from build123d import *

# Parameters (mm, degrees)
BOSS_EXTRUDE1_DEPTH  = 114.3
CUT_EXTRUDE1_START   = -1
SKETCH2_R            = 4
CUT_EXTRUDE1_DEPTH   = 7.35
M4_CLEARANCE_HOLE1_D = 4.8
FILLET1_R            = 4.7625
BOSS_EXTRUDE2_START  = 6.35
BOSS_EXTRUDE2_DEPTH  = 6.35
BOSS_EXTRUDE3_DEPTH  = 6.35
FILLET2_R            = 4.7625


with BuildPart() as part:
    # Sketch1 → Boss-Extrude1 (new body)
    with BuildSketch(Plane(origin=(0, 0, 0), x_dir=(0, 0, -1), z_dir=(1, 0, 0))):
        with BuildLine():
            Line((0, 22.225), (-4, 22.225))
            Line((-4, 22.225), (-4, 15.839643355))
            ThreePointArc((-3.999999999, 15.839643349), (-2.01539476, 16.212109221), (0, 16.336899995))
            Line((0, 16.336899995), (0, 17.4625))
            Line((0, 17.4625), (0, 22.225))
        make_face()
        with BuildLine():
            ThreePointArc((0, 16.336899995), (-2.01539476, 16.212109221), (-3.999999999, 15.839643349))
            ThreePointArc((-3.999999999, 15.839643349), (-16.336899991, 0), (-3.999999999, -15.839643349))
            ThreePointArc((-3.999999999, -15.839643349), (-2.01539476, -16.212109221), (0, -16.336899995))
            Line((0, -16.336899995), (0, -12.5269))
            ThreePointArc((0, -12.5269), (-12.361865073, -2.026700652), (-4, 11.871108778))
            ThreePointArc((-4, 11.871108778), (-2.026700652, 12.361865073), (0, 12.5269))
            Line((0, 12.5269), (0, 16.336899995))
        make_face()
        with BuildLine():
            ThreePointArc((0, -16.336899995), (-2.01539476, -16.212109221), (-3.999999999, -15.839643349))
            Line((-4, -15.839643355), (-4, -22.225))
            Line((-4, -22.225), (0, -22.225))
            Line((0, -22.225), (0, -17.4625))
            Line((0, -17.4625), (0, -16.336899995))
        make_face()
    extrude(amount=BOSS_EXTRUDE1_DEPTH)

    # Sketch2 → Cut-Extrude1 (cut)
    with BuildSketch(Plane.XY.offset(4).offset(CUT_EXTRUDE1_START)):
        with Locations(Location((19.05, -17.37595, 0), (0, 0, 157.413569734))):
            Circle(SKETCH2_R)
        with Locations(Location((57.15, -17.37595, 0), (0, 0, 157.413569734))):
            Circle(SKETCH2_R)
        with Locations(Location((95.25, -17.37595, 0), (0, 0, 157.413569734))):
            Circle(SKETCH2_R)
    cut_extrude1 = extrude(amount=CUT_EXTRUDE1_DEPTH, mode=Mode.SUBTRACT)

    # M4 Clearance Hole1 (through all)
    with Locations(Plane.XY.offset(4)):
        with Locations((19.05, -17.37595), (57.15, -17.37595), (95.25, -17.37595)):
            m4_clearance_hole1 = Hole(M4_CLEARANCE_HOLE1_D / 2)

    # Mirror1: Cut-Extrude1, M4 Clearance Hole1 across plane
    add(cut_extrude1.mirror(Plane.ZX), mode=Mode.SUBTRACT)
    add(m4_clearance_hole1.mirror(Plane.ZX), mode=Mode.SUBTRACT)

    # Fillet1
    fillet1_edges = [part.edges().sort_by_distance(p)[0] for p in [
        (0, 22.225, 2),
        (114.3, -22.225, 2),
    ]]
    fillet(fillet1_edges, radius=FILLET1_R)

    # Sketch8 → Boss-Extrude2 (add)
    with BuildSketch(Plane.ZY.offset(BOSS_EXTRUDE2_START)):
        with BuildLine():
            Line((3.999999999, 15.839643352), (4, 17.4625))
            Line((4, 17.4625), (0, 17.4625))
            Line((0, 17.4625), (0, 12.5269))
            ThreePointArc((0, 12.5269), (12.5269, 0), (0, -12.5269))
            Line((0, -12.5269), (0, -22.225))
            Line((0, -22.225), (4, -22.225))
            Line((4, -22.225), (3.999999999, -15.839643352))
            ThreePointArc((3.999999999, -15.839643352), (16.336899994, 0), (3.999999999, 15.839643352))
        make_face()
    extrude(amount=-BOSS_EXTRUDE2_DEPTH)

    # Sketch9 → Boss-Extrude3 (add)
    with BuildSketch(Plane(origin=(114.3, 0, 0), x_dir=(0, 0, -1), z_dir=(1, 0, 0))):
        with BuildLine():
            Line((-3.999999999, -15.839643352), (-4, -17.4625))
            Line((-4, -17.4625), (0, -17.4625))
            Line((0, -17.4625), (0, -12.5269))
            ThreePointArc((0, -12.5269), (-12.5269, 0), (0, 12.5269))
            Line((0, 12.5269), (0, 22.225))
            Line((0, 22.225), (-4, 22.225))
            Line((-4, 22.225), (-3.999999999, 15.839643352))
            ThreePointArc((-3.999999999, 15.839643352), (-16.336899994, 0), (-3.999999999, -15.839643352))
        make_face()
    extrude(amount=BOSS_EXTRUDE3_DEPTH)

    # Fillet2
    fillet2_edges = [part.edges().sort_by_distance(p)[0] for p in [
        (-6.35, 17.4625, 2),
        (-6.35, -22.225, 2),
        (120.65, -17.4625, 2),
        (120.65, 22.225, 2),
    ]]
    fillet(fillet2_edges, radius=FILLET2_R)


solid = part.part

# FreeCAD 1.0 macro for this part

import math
import FreeCAD as App
import Part
import Sketcher

V = App.Vector
Q = App.Units.Quantity


def edges_at(feature, points):
    """Names of the edges that pass closest to the given points."""
    edges = feature.Shape.Edges
    near = lambda p: min(range(len(edges)), key=lambda i: edges[i].distToShape(Part.Vertex(*p))[0])
    return sorted({f"Edge{near(p) + 1}" for p in points})

doc = App.newDocument("Part")
body = doc.addObject("PartDesign::Body", "Body")

# Sketch on YZ plane
sketch1 = body.newObject("Sketcher::SketchObject", "Sketch")
sketch1.AttachmentSupport = (doc.getObject("YZ_Plane"), [""])
sketch1.MapMode = "FlatFace"
sketch1.addGeometry(Part.LineSegment(V(22.2, 0, 0), V(22.2, 4, 0)), False)
sketch1.addGeometry(Part.LineSegment(V(22.2, 4, 0), V(15.8, 4, 0)), False)
sketch1.addGeometry(Part.ArcOfCircle(Part.Circle(V(0, 0, 0), V(0, 0, 1), 16.3), math.radians(14), math.radians(166)), False)
sketch1.addGeometry(Part.LineSegment(V(-15.8, 4, 0), V(-22.2, 4, 0)), False)
sketch1.addGeometry(Part.LineSegment(V(-22.2, 4, 0), V(-22.2, 0, 0)), False)
sketch1.addGeometry(Part.LineSegment(V(-22.2, 0, 0), V(-12.5, 0, 0)), False)
sketch1.addGeometry(Part.ArcOfCircle(Part.Circle(V(0, 0, 0), V(0, 0, 1), 12.5), math.radians(19), math.radians(180)), False)
sketch1.addGeometry(Part.ArcOfCircle(Part.Circle(V(0, 0, 0), V(0, 0, 1), 12.5), math.radians(0), math.radians(18.62)), False)
sketch1.addGeometry(Part.LineSegment(V(12.5, 0, 0), V(22.2, 0, 0)), False)
sketch1.addConstraint(Sketcher.Constraint("Coincident", 0, 2, 1, 1))
sketch1.addConstraint(Sketcher.Constraint("Coincident", 1, 2, 2, 1))
sketch1.addConstraint(Sketcher.Constraint("Coincident", 2, 2, 3, 1))
sketch1.addConstraint(Sketcher.Constraint("Coincident", 3, 2, 4, 1))
sketch1.addConstraint(Sketcher.Constraint("Coincident", 4, 2, 5, 1))
sketch1.addConstraint(Sketcher.Constraint("Coincident", 5, 2, 6, 2))
sketch1.addConstraint(Sketcher.Constraint("Tangent", 6, 1, 7, 2))
sketch1.addConstraint(Sketcher.Constraint("Coincident", 7, 1, 8, 1))
sketch1.addConstraint(Sketcher.Constraint("Coincident", 8, 2, 0, 1))
sketch1.addConstraint(Sketcher.Constraint("Vertical", 0))
sketch1.addConstraint(Sketcher.Constraint("Horizontal", 1))
sketch1.addConstraint(Sketcher.Constraint("Horizontal", 3))
sketch1.addConstraint(Sketcher.Constraint("Vertical", 4))
sketch1.addConstraint(Sketcher.Constraint("Horizontal", 5))
sketch1.addConstraint(Sketcher.Constraint("Horizontal", 8))
sketch1.addConstraint(Sketcher.Constraint("Coincident", 2, 3, -1, 1))
sketch1.addConstraint(Sketcher.Constraint("Coincident", 6, 3, -1, 1))
sketch1.addConstraint(Sketcher.Constraint("Equal", 6, 7))
sketch1.addConstraint(Sketcher.Constraint("Symmetric", 4, 2, 8, 2, -1, 1))
sketch1.addConstraint(Sketcher.Constraint("PointOnObject", 4, 2, -1))
sketch1.addConstraint(Sketcher.Constraint("Horizontal", 1, 2, 2, 2))
sketch1.addConstraint(Sketcher.Constraint("Horizontal", 3, 2, 6, 1))
sketch1.addConstraint(Sketcher.Constraint("DistanceY", 0, 1, 0, 2, Q("4 mm")))
sketch1.addConstraint(Sketcher.Constraint("Radius", 2, Q("16.3369 mm")))
sketch1.addConstraint(Sketcher.Constraint("Radius", 6, Q("12.5269 mm")))
sketch1.addConstraint(Sketcher.Constraint("DistanceX", 5, 1, 5, 2, Q("9.6981 mm")))
pad1 = body.newObject("PartDesign::Pad", "Pad")
pad1.Profile = sketch1
pad1.Length = 114.3

# Sketch on XY plane
sketch2 = body.newObject("Sketcher::SketchObject", "Sketch001")
sketch2.AttachmentSupport = (doc.getObject("XY_Plane"), [""])
sketch2.MapMode = "FlatFace"
sketch2.AttachmentOffset = App.Placement(V(0, 0, 3), App.Rotation())
sketch2.addGeometry(Part.Circle(V(19.1, -17.4, 0), V(0, 0, 1), 4), False)
sketch2.addGeometry(Part.Circle(V(57.1, -17.4, 0), V(0, 0, 1), 4), False)
sketch2.addGeometry(Part.Circle(V(95.2, -17.4, 0), V(0, 0, 1), 4), False)
sketch2.addConstraint(Sketcher.Constraint("Equal", 0, 1))
sketch2.addConstraint(Sketcher.Constraint("Equal", 1, 2))
sketch2.addConstraint(Sketcher.Constraint("Horizontal", 0, 3, 1, 3))
sketch2.addConstraint(Sketcher.Constraint("Horizontal", 1, 3, 2, 3))
sketch2.addConstraint(Sketcher.Constraint("Diameter", 0, Q("8 mm")))
sketch2.addConstraint(Sketcher.Constraint("DistanceX", 0, 3, 1, 3, Q("38.1 mm")))
sketch2.addConstraint(Sketcher.Constraint("DistanceX", 1, 3, 2, 3, Q("38.1 mm")))
sketch2.addConstraint(Sketcher.Constraint("DistanceX", -1, 1, 0, 3, Q("19.05 mm")))
sketch2.addConstraint(Sketcher.Constraint("DistanceY", 0, 3, -1, 1, Q("17.37595 mm")))
pocket1 = body.newObject("PartDesign::Pocket", "Pocket")
pocket1.Profile = sketch2
pocket1.Length = 7.35
pocket1.Reversed = True

# Sketch on XY plane
sketch3 = body.newObject("Sketcher::SketchObject", "Sketch002")
sketch3.AttachmentSupport = (doc.getObject("XY_Plane"), [""])
sketch3.MapMode = "FlatFace"
sketch3.AttachmentOffset = App.Placement(V(0, 0, 4), App.Rotation())
sketch3.addGeometry(Part.Circle(V(19.1, -17.4, 0), V(0, 0, 1), 2.4), False)
sketch3.addGeometry(Part.Circle(V(57.1, -17.4, 0), V(0, 0, 1), 2.4), False)
sketch3.addGeometry(Part.Circle(V(95.2, -17.4, 0), V(0, 0, 1), 2.4), False)
sketch3.addConstraint(Sketcher.Constraint("Equal", 0, 1))
sketch3.addConstraint(Sketcher.Constraint("Equal", 1, 2))
sketch3.addConstraint(Sketcher.Constraint("Horizontal", 0, 3, 1, 3))
sketch3.addConstraint(Sketcher.Constraint("Horizontal", 1, 3, 2, 3))
sketch3.addConstraint(Sketcher.Constraint("Diameter", 0, Q("4.8 mm")))
sketch3.addConstraint(Sketcher.Constraint("DistanceX", 0, 3, 1, 3, Q("38.1 mm")))
sketch3.addConstraint(Sketcher.Constraint("DistanceX", 1, 3, 2, 3, Q("38.1 mm")))
sketch3.addConstraint(Sketcher.Constraint("DistanceX", -1, 1, 0, 3, Q("19.05 mm")))
sketch3.addConstraint(Sketcher.Constraint("DistanceY", 0, 3, -1, 1, Q("17.37595 mm")))
doc.recompute()
hole = body.newObject("PartDesign::Hole", "Hole")
hole.Profile = sketch3
hole.ThreadType = "None"
hole.Diameter = 4.8
hole.DepthType = "ThroughAll"
doc.recompute()

mirrored = body.newObject("PartDesign::Mirrored", "Mirrored")
mirrored.Originals = [pocket1, hole]
mirrored.MirrorPlane = (doc.getObject("XZ_Plane"), [""])
body.Tip = mirrored
doc.recompute()

fillet = body.newObject("PartDesign::Fillet", "Fillet")
fillet.Base = (mirrored, edges_at(mirrored, [(0, 22.225, 2), (114.3, -22.225, 2)]))
fillet.Radius = 4.7625

# Sketch on YZ plane
sketch4 = body.newObject("Sketcher::SketchObject", "Sketch003")
sketch4.AttachmentSupport = (doc.getObject("YZ_Plane"), [""])
sketch4.MapMode = "FlatFace"
sketch4.AttachmentOffset = App.Placement(V(0, 0, -6.35), App.Rotation())
sketch4.addGeometry(Part.LineSegment(V(15.8, 4, 0), V(17.5, 4, 0)), False)
sketch4.addGeometry(Part.LineSegment(V(17.5, 4, 0), V(17.5, 0, 0)), False)
sketch4.addGeometry(Part.LineSegment(V(17.5, 0, 0), V(12.5, 0, 0)), False)
sketch4.addGeometry(Part.ArcOfCircle(Part.Circle(V(0, 0, 0), V(0, 0, 1), 12.5), math.radians(0), math.radians(180)), False)
sketch4.addGeometry(Part.LineSegment(V(-12.5, 0, 0), V(-22.2, 0, 0)), False)
sketch4.addGeometry(Part.LineSegment(V(-22.2, 0, 0), V(-22.2, 4, 0)), False)
sketch4.addGeometry(Part.LineSegment(V(-22.2, 4, 0), V(-15.8, 4, 0)), False)
sketch4.addGeometry(Part.ArcOfCircle(Part.Circle(V(0, 0, 0), V(0, 0, 1), 16.3), math.radians(14), math.radians(166)), False)
sketch4.addConstraint(Sketcher.Constraint("Coincident", 0, 2, 1, 1))
sketch4.addConstraint(Sketcher.Constraint("Coincident", 1, 2, 2, 1))
sketch4.addConstraint(Sketcher.Constraint("Coincident", 2, 2, 3, 1))
sketch4.addConstraint(Sketcher.Constraint("Coincident", 3, 2, 4, 1))
sketch4.addConstraint(Sketcher.Constraint("Coincident", 4, 2, 5, 1))
sketch4.addConstraint(Sketcher.Constraint("Coincident", 5, 2, 6, 1))
sketch4.addConstraint(Sketcher.Constraint("Coincident", 6, 2, 7, 2))
sketch4.addConstraint(Sketcher.Constraint("Coincident", 7, 1, 0, 1))
sketch4.addConstraint(Sketcher.Constraint("Horizontal", 0))
sketch4.addConstraint(Sketcher.Constraint("Vertical", 1))
sketch4.addConstraint(Sketcher.Constraint("Horizontal", 2))
sketch4.addConstraint(Sketcher.Constraint("Horizontal", 4))
sketch4.addConstraint(Sketcher.Constraint("Vertical", 5))
sketch4.addConstraint(Sketcher.Constraint("Horizontal", 6))
sketch4.addConstraint(Sketcher.Constraint("Coincident", 3, 3, -1, 1))
sketch4.addConstraint(Sketcher.Constraint("Coincident", 7, 3, -1, 1))
sketch4.addConstraint(Sketcher.Constraint("PointOnObject", 1, 2, -1))
sketch4.addConstraint(Sketcher.Constraint("PointOnObject", 3, 2, -1))
sketch4.addConstraint(Sketcher.Constraint("Horizontal", 0, 2, 5, 2))
sketch4.addConstraint(Sketcher.Constraint("DistanceY", 1, 2, 1, 1, Q("4 mm")))
sketch4.addConstraint(Sketcher.Constraint("Radius", 3, Q("12.5269 mm")))
sketch4.addConstraint(Sketcher.Constraint("Radius", 7, Q("16.3369 mm")))
sketch4.addConstraint(Sketcher.Constraint("DistanceX", 2, 2, 2, 1, Q("4.9356 mm")))
sketch4.addConstraint(Sketcher.Constraint("DistanceX", 4, 2, 4, 1, Q("9.6981 mm")))
pad2 = body.newObject("PartDesign::Pad", "Pad001")
pad2.Profile = sketch4
pad2.Length = 6.35

# Sketch on YZ plane
sketch5 = body.newObject("Sketcher::SketchObject", "Sketch004")
sketch5.AttachmentSupport = (doc.getObject("YZ_Plane"), [""])
sketch5.MapMode = "FlatFace"
sketch5.AttachmentOffset = App.Placement(V(0, 0, 114.3), App.Rotation())
sketch5.addGeometry(Part.LineSegment(V(-15.8, 4, 0), V(-17.5, 4, 0)), False)
sketch5.addGeometry(Part.LineSegment(V(-17.5, 4, 0), V(-17.5, 0, 0)), False)
sketch5.addGeometry(Part.LineSegment(V(-17.5, 0, 0), V(-12.5, 0, 0)), False)
sketch5.addGeometry(Part.ArcOfCircle(Part.Circle(V(0, 0, 0), V(0, 0, 1), 12.5), math.radians(0), math.radians(180)), False)
sketch5.addGeometry(Part.LineSegment(V(12.5, 0, 0), V(22.2, 0, 0)), False)
sketch5.addGeometry(Part.LineSegment(V(22.2, 0, 0), V(22.2, 4, 0)), False)
sketch5.addGeometry(Part.LineSegment(V(22.2, 4, 0), V(15.8, 4, 0)), False)
sketch5.addGeometry(Part.ArcOfCircle(Part.Circle(V(0, 0, 0), V(0, 0, 1), 16.3), math.radians(14), math.radians(166)), False)
sketch5.addConstraint(Sketcher.Constraint("Coincident", 0, 2, 1, 1))
sketch5.addConstraint(Sketcher.Constraint("Coincident", 1, 2, 2, 1))
sketch5.addConstraint(Sketcher.Constraint("Coincident", 2, 2, 3, 2))
sketch5.addConstraint(Sketcher.Constraint("Coincident", 3, 1, 4, 1))
sketch5.addConstraint(Sketcher.Constraint("Coincident", 4, 2, 5, 1))
sketch5.addConstraint(Sketcher.Constraint("Coincident", 5, 2, 6, 1))
sketch5.addConstraint(Sketcher.Constraint("Coincident", 6, 2, 7, 1))
sketch5.addConstraint(Sketcher.Constraint("Coincident", 7, 2, 0, 1))
sketch5.addConstraint(Sketcher.Constraint("Horizontal", 0))
sketch5.addConstraint(Sketcher.Constraint("Vertical", 1))
sketch5.addConstraint(Sketcher.Constraint("Horizontal", 2))
sketch5.addConstraint(Sketcher.Constraint("Horizontal", 4))
sketch5.addConstraint(Sketcher.Constraint("Vertical", 5))
sketch5.addConstraint(Sketcher.Constraint("Horizontal", 6))
sketch5.addConstraint(Sketcher.Constraint("Coincident", 3, 3, -1, 1))
sketch5.addConstraint(Sketcher.Constraint("Coincident", 7, 3, -1, 1))
sketch5.addConstraint(Sketcher.Constraint("PointOnObject", 1, 2, -1))
sketch5.addConstraint(Sketcher.Constraint("PointOnObject", 3, 1, -1))
sketch5.addConstraint(Sketcher.Constraint("Horizontal", 0, 2, 5, 2))
sketch5.addConstraint(Sketcher.Constraint("DistanceY", 1, 2, 1, 1, Q("4 mm")))
sketch5.addConstraint(Sketcher.Constraint("Radius", 3, Q("12.5269 mm")))
sketch5.addConstraint(Sketcher.Constraint("Radius", 7, Q("16.3369 mm")))
sketch5.addConstraint(Sketcher.Constraint("DistanceX", 2, 1, 2, 2, Q("4.9356 mm")))
sketch5.addConstraint(Sketcher.Constraint("DistanceX", 4, 1, 4, 2, Q("9.6981 mm")))
pad3 = body.newObject("PartDesign::Pad", "Pad002")
pad3.Profile = sketch5
pad3.Length = 6.35
doc.recompute()

fillet2 = body.newObject("PartDesign::Fillet", "Fillet001")
fillet2.Base = (pad3, edges_at(pad3, [
    (-6.35, 17.462, 2),
    (-6.35, -22.225, 2),
    (120.65, -17.462, 2),
    (120.65, 22.225, 2),
]))
fillet2.Radius = 4.7625

doc.recompute()
